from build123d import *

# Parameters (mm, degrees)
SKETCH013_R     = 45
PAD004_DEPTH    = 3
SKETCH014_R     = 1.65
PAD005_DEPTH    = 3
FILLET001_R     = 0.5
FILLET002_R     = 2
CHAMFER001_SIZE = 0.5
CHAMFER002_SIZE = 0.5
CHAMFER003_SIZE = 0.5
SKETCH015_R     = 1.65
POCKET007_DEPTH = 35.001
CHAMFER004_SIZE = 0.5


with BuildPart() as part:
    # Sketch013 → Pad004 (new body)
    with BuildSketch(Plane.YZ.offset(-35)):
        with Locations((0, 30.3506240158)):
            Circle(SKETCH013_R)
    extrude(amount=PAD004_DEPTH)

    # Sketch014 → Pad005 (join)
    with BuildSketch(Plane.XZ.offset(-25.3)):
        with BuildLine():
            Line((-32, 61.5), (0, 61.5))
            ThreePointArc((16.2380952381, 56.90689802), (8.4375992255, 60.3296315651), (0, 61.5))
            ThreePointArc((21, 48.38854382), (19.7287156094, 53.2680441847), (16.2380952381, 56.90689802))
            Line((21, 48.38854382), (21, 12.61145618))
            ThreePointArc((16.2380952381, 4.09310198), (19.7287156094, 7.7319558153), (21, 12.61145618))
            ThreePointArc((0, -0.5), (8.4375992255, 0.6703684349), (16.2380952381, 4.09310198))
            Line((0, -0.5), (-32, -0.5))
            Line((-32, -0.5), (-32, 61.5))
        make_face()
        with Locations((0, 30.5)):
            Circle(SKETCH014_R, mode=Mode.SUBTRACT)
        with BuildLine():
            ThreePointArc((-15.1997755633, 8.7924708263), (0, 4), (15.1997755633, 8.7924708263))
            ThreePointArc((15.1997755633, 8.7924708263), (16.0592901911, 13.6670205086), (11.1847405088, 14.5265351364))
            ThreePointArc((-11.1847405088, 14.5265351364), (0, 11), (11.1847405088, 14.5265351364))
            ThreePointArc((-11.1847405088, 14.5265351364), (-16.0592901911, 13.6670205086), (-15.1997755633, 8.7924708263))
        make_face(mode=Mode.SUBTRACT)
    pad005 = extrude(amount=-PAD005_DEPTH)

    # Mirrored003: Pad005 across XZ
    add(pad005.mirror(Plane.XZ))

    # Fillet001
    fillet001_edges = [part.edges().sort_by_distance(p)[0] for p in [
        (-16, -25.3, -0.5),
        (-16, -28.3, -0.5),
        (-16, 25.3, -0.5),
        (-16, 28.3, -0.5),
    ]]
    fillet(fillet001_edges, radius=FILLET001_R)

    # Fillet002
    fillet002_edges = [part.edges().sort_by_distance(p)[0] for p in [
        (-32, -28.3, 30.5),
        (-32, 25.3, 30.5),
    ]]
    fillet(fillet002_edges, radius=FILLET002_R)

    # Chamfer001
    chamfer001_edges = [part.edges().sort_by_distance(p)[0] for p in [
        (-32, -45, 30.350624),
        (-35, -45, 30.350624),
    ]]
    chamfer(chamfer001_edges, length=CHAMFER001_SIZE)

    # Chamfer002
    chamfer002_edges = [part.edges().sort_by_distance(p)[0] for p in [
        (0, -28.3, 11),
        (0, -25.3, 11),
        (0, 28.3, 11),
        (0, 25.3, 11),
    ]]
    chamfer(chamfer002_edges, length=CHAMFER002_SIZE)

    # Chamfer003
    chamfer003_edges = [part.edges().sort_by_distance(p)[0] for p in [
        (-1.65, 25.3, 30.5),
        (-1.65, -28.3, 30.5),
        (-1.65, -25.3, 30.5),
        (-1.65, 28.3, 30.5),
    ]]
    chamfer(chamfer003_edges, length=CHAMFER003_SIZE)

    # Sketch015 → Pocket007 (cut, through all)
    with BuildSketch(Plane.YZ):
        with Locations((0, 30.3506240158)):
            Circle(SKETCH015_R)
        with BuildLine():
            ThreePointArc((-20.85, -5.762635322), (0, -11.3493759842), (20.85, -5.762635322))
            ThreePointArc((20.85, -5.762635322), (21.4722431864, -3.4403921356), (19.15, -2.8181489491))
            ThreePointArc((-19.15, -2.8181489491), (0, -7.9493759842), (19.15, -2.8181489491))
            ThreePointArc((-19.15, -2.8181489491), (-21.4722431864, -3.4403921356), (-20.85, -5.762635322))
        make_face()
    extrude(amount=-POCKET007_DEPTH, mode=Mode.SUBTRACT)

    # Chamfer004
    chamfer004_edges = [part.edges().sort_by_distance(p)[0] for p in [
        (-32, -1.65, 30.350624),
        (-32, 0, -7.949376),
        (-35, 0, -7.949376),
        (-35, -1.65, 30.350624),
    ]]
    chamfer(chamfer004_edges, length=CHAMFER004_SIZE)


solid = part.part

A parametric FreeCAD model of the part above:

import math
import FreeCAD as App
import Part
import Sketcher
from FreeCAD import Vector
Q = App.Units.Quantity


def edges_at(feature, points):
    """Names of the edges that pass closest to the given points."""
    edges = feature.Shape.Edges
    near = lambda p: min(range(len(edges)), key=lambda i: edges[i].distToShape(Part.Vertex(*p))[0])
    return sorted({f"Edge{near(p) + 1}" for p in points})

doc = App.newDocument("Part")
params = doc.addObject("Spreadsheet::Sheet", "Params")
for row, (alias, value) in enumerate([
    ("sketch1_diameter", "90 mm"),
    ("pad1_length", "3 mm"),
    ("sketch2_radius", "31 mm"),
    ("sketch2_radius2", "10 mm"),
    ("sketch2_diameter", "3.3 mm"),
    ("sketch2_radius3", "3.5 mm"),
    ("sketch2_radius4", "19.5 mm"),
    ("pad2_length", "3 mm"),
    ("fillet_radius", "0.5 mm"),
    ("fillet2_radius", "2 mm"),
    ("chamfer_size", "0.5 mm"),
    ("chamfer2_size", "0.5 mm"),
    ("chamfer3_size", "0.5 mm"),
    ("sketch3_diameter", "3.3 mm"),
    ("sketch3_radius", "41.7 mm"),
    ("sketch3_radius2", "1.7 mm"),
    ("chamfer4_size", "0.5 mm"),
], start=1):
    params.set(f"A{row}", alias)
    params.set(f"B{row}", "=" + value)
    params.setAlias(f"B{row}", alias)

body = doc.addObject("PartDesign::Body", "Body")

sketch1 = doc.addObject("Sketcher::SketchObject", "Sketch")
body.addObject(sketch1)
sketch1.AttachmentSupport = (doc.YZ_Plane, [""])
sketch1.MapMode = "FlatFace"
sketch1.AttachmentOffset = App.Placement(Vector(0, 0, -35), App.Rotation())
sketch1.addGeometry(Part.Circle(Vector(0, 30, 0), Vector(0, 0, 1), 45), False)
sketch1.addConstraint(Sketcher.Constraint("PointOnObject", 0, 3, -2))
sketch1.addConstraint(Sketcher.Constraint("Diameter", 0, Q("90 mm")))
sketch1.addConstraint(Sketcher.Constraint("DistanceY", -1, 1, 0, 3, Q("30.350624 mm")))
sketch1.setExpression("Constraints[1]", "Params.sketch1_diameter")
pad1 = doc.addObject("PartDesign::Pad", "Pad")
body.addObject(pad1)
pad1.Profile = sketch1
pad1.setExpression("Length", "Params.pad1_length")

sketch2 = doc.addObject("Sketcher::SketchObject", "Sketch001")
body.addObject(sketch2)
sketch2.AttachmentSupport = (doc.XZ_Plane, [""])
sketch2.MapMode = "FlatFace"
sketch2.AttachmentOffset = App.Placement(Vector(0, 0, -25.3), App.Rotation())
sketch2.addGeometry(Part.LineSegment(Vector(0, 61.5, 0), Vector(-32, 61.5, 0)), False)
sketch2.addGeometry(Part.LineSegment(Vector(-32, 61.5, 0), Vector(-32, -0.5, 0)), False)
sketch2.addGeometry(Part.LineSegment(Vector(-32, -0.5, 0), Vector(0, -0.5, 0)), False)
sketch2.addGeometry(Part.ArcOfCircle(Part.Circle(Vector(0, 30.5, 0), Vector(0, 0, 1), 31), math.radians(-90), math.radians(-58)), False)
sketch2.addGeometry(Part.ArcOfCircle(Part.Circle(Vector(11, 12.6, 0), Vector(0, 0, 1), 10), math.radians(-58), math.radians(0)), False)
sketch2.addGeometry(Part.LineSegment(Vector(21, 12.6, 0), Vector(21, 48.4, 0)), False)
sketch2.addGeometry(Part.ArcOfCircle(Part.Circle(Vector(11, 48.4, 0), Vector(0, 0, 1), 10), math.radians(0), math.radians(58)), False)
sketch2.addGeometry(Part.ArcOfCircle(Part.Circle(Vector(0, 30.5, 0), Vector(0, 0, 1), 31), math.radians(58), math.radians(90)), False)
sketch2.addGeometry(Part.ArcOfCircle(Part.Circle(Vector(-13.2, 11.7, 0), Vector(0, 0, 1), 3.5), math.radians(55), math.radians(235)), False)
sketch2.addGeometry(Part.ArcOfCircle(Part.Circle(Vector(0, 30.5, 0), Vector(0, 0, 1), 19.5), math.radians(-125), math.radians(-55)), False)
sketch2.addGeometry(Part.ArcOfCircle(Part.Circle(Vector(13.2, 11.7, 0), Vector(0, 0, 1), 3.5), math.radians(-55), math.radians(125)), False)
sketch2.addGeometry(Part.ArcOfCircle(Part.Circle(Vector(0, 30.5, 0), Vector(0, 0, 1), 26.5), math.radians(-125), math.radians(-55)), False)
sketch2.addGeometry(Part.Circle(Vector(0, 30.5, 0), Vector(0, 0, 1), 1.6), False)
sketch2.addConstraint(Sketcher.Constraint("Coincident", 0, 2, 1, 1))
sketch2.addConstraint(Sketcher.Constraint("Coincident", 1, 2, 2, 1))
sketch2.addConstraint(Sketcher.Constraint("Tangent", 2, 2, 3, 1))
sketch2.addConstraint(Sketcher.Constraint("Tangent", 3, 2, 4, 1))
sketch2.addConstraint(Sketcher.Constraint("Tangent", 4, 2, 5, 1))
sketch2.addConstraint(Sketcher.Constraint("Tangent", 5, 2, 6, 1))
sketch2.addConstraint(Sketcher.Constraint("Tangent", 6, 2, 7, 1))
sketch2.addConstraint(Sketcher.Constraint("Tangent", 7, 2, 0, 1))
sketch2.addConstraint(Sketcher.Constraint("Tangent", 8, 1, 9, 1))
sketch2.addConstraint(Sketcher.Constraint("Tangent", 9, 2, 10, 2))
sketch2.addConstraint(Sketcher.Constraint("Tangent", 10, 1, 11, 2))
sketch2.addConstraint(Sketcher.Constraint("Tangent", 11, 1, 8, 2))
sketch2.addConstraint(Sketcher.Constraint("Horizontal", 0))
sketch2.addConstraint(Sketcher.Constraint("Vertical", 1))
sketch2.addConstraint(Sketcher.Constraint("Horizontal", 2))
sketch2.addConstraint(Sketcher.Constraint("Vertical", 5))
sketch2.addConstraint(Sketcher.Constraint("Coincident", 7, 3, 3, 3))
sketch2.addConstraint(Sketcher.Constraint("Coincident", 9, 3, 3, 3))
sketch2.addConstraint(Sketcher.Constraint("Coincident", 11, 3, 3, 3))
sketch2.addConstraint(Sketcher.Constraint("Coincident", 12, 3, 3, 3))
sketch2.addConstraint(Sketcher.Constraint("Equal", 4, 6))
sketch2.addConstraint(Sketcher.Constraint("Equal", 3, 7))
sketch2.addConstraint(Sketcher.Constraint("Symmetric", 8, 3, 10, 3, -2))
sketch2.addConstraint(Sketcher.Constraint("Radius", 3, Q("31 mm")))
sketch2.addConstraint(Sketcher.Constraint("Radius", 4, Q("10 mm")))
sketch2.addConstraint(Sketcher.Constraint("Diameter", 12, Q("3.3 mm")))
sketch2.addConstraint(Sketcher.Constraint("Radius", 8, Q("3.5 mm")))
sketch2.addConstraint(Sketcher.Constraint("Radius", 9, Q("19.5 mm")))
sketch2.addConstraint(Sketcher.Constraint("DistanceX", 0, 2, 0, 1, Q("32 mm")))
sketch2.addConstraint(Sketcher.Constraint("DistanceX", -1, 1, 4, 3, Q("11 mm")))
sketch2.addConstraint(Sketcher.Constraint("DistanceY", -1, 1, 3, 3, Q("30.5 mm")))
sketch2.addConstraint(Sketcher.Constraint("DistanceY", 3, 2, 10, 3, Q("7.566401 mm")))
sketch2.setExpression("Constraints[23]", "Params.sketch2_radius")
sketch2.setExpression("Constraints[24]", "Params.sketch2_radius2")
sketch2.setExpression("Constraints[25]", "Params.sketch2_diameter")
sketch2.setExpression("Constraints[26]", "Params.sketch2_radius3")
sketch2.setExpression("Constraints[27]", "Params.sketch2_radius4")
pad2 = doc.addObject("PartDesign::Pad", "Pad001")
body.addObject(pad2)
pad2.Profile = sketch2
pad2.setExpression("Length", "Params.pad2_length")
pad2.Reversed = True
doc.recompute()

mirrored = doc.addObject("PartDesign::Mirrored", "Mirrored")
body.addObject(mirrored)
mirrored.Originals = [pad2]
mirrored.MirrorPlane = (doc.XZ_Plane, [""])
body.Tip = mirrored
doc.recompute()

fillet = doc.addObject("PartDesign::Fillet", "Fillet")
body.addObject(fillet)
fillet.Base = (mirrored, edges_at(mirrored, [
    (-16, -25.3, -0.5),
    (-16, -28.3, -0.5),
    (-16, 25.3, -0.5),
    (-16, 28.3, -0.5),
]))
fillet.setExpression("Radius", "Params.fillet_radius")
doc.recompute()

fillet2 = doc.addObject("PartDesign::Fillet", "Fillet001")
body.addObject(fillet2)
fillet2.Base = (fillet, edges_at(fillet, [(-32, -28.3, 30.5), (-32, 25.3, 30.5)]))
fillet2.setExpression("Radius", "Params.fillet2_radius")
doc.recompute()

chamfer = doc.addObject("PartDesign::Chamfer", "Chamfer")
body.addObject(chamfer)
chamfer.Base = (fillet2, edges_at(fillet2, [(-32, -45, 30.351), (-35, -45, 30.351)]))
chamfer.setExpression("Size", "Params.chamfer_size")
doc.recompute()

chamfer2 = doc.addObject("PartDesign::Chamfer", "Chamfer001")
body.addObject(chamfer2)
chamfer2.Base = (chamfer, edges_at(chamfer, [
    (0, -28.3, 11),
    (0, -25.3, 11),
    (0, 28.3, 11),
    (0, 25.3, 11),
]))
chamfer2.setExpression("Size", "Params.chamfer2_size")
doc.recompute()

chamfer3 = doc.addObject("PartDesign::Chamfer", "Chamfer002")
body.addObject(chamfer3)
chamfer3.Base = (chamfer2, edges_at(chamfer2, [
    (-1.65, 25.3, 30.5),
    (-1.65, -28.3, 30.5),
    (-1.65, -25.3, 30.5),
    (-1.65, 28.3, 30.5),
]))
chamfer3.setExpression("Size", "Params.chamfer3_size")

sketch3 = doc.addObject("Sketcher::SketchObject", "Sketch002")
body.addObject(sketch3)
sketch3.AttachmentSupport = (doc.YZ_Plane, [""])
sketch3.MapMode = "FlatFace"
sketch3.addGeometry(Part.Circle(Vector(0, 30.4, 0), Vector(0, 0, 1), 1.6), False)
sketch3.addGeometry(Part.ArcOfCircle(Part.Circle(Vector(0, 30.4, 0), Vector(0, 0, 1), 41.7), math.radians(-120), math.radians(-60)), False)
sketch3.addGeometry(Part.ArcOfCircle(Part.Circle(Vector(20, -4.3, 0), Vector(0, 0, 1), 1.7), math.radians(-60), math.radians(120)), False)
sketch3.addGeometry(Part.ArcOfCircle(Part.Circle(Vector(0, 30.4, 0), Vector(0, 0, 1), 38.3), math.radians(-120), math.radians(-60)), False)
sketch3.addGeometry(Part.ArcOfCircle(Part.Circle(Vector(-20, -4.3, 0), Vector(0, 0, 1), 1.7), math.radians(60), math.radians(240)), False)
sketch3.addConstraint(Sketcher.Constraint("Tangent", 1, 2, 2, 1))
sketch3.addConstraint(Sketcher.Constraint("Tangent", 2, 2, 3, 2))
sketch3.addConstraint(Sketcher.Constraint("Tangent", 3, 1, 4, 1))
sketch3.addConstraint(Sketcher.Constraint("Tangent", 4, 2, 1, 1))
sketch3.addConstraint(Sketcher.Constraint("Coincident", 1, 3, 0, 3))
sketch3.addConstraint(Sketcher.Constraint("Coincident", 3, 3, 0, 3))
sketch3.addConstraint(Sketcher.Constraint("Symmetric", 2, 3, 4, 3, -2))
sketch3.addConstraint(Sketcher.Constraint("Diameter", 0, Q("3.3 mm")))
sketch3.addConstraint(Sketcher.Constraint("Radius", 1, Q("41.7 mm")))
sketch3.addConstraint(Sketcher.Constraint("Radius", 2, Q("1.7 mm")))
sketch3.addConstraint(Sketcher.Constraint("DistanceX", -1, 1, 2, 3, Q("20 mm")))
sketch3.addConstraint(Sketcher.Constraint("DistanceY", 2, 2, -1, 1, Q("2.818149 mm")))
sketch3.setExpression("Constraints[7]", "Params.sketch3_diameter")
sketch3.setExpression("Constraints[8]", "Params.sketch3_radius")
sketch3.setExpression("Constraints[9]", "Params.sketch3_radius2")
pocket1 = doc.addObject("PartDesign::Pocket", "Pocket")
body.addObject(pocket1)
pocket1.Profile = sketch3
pocket1.Type = "ThroughAll"
doc.recompute()

chamfer4 = doc.addObject("PartDesign::Chamfer", "Chamfer003")
body.addObject(chamfer4)
chamfer4.Base = (pocket1, edges_at(pocket1, [
    (-32, -1.65, 30.351),
    (-32, 0, -7.949),
    (-35, 0, -7.949),
    (-35, -1.65, 30.351),
]))
chamfer4.setExpression("Size", "Params.chamfer4_size")

doc.recompute()
